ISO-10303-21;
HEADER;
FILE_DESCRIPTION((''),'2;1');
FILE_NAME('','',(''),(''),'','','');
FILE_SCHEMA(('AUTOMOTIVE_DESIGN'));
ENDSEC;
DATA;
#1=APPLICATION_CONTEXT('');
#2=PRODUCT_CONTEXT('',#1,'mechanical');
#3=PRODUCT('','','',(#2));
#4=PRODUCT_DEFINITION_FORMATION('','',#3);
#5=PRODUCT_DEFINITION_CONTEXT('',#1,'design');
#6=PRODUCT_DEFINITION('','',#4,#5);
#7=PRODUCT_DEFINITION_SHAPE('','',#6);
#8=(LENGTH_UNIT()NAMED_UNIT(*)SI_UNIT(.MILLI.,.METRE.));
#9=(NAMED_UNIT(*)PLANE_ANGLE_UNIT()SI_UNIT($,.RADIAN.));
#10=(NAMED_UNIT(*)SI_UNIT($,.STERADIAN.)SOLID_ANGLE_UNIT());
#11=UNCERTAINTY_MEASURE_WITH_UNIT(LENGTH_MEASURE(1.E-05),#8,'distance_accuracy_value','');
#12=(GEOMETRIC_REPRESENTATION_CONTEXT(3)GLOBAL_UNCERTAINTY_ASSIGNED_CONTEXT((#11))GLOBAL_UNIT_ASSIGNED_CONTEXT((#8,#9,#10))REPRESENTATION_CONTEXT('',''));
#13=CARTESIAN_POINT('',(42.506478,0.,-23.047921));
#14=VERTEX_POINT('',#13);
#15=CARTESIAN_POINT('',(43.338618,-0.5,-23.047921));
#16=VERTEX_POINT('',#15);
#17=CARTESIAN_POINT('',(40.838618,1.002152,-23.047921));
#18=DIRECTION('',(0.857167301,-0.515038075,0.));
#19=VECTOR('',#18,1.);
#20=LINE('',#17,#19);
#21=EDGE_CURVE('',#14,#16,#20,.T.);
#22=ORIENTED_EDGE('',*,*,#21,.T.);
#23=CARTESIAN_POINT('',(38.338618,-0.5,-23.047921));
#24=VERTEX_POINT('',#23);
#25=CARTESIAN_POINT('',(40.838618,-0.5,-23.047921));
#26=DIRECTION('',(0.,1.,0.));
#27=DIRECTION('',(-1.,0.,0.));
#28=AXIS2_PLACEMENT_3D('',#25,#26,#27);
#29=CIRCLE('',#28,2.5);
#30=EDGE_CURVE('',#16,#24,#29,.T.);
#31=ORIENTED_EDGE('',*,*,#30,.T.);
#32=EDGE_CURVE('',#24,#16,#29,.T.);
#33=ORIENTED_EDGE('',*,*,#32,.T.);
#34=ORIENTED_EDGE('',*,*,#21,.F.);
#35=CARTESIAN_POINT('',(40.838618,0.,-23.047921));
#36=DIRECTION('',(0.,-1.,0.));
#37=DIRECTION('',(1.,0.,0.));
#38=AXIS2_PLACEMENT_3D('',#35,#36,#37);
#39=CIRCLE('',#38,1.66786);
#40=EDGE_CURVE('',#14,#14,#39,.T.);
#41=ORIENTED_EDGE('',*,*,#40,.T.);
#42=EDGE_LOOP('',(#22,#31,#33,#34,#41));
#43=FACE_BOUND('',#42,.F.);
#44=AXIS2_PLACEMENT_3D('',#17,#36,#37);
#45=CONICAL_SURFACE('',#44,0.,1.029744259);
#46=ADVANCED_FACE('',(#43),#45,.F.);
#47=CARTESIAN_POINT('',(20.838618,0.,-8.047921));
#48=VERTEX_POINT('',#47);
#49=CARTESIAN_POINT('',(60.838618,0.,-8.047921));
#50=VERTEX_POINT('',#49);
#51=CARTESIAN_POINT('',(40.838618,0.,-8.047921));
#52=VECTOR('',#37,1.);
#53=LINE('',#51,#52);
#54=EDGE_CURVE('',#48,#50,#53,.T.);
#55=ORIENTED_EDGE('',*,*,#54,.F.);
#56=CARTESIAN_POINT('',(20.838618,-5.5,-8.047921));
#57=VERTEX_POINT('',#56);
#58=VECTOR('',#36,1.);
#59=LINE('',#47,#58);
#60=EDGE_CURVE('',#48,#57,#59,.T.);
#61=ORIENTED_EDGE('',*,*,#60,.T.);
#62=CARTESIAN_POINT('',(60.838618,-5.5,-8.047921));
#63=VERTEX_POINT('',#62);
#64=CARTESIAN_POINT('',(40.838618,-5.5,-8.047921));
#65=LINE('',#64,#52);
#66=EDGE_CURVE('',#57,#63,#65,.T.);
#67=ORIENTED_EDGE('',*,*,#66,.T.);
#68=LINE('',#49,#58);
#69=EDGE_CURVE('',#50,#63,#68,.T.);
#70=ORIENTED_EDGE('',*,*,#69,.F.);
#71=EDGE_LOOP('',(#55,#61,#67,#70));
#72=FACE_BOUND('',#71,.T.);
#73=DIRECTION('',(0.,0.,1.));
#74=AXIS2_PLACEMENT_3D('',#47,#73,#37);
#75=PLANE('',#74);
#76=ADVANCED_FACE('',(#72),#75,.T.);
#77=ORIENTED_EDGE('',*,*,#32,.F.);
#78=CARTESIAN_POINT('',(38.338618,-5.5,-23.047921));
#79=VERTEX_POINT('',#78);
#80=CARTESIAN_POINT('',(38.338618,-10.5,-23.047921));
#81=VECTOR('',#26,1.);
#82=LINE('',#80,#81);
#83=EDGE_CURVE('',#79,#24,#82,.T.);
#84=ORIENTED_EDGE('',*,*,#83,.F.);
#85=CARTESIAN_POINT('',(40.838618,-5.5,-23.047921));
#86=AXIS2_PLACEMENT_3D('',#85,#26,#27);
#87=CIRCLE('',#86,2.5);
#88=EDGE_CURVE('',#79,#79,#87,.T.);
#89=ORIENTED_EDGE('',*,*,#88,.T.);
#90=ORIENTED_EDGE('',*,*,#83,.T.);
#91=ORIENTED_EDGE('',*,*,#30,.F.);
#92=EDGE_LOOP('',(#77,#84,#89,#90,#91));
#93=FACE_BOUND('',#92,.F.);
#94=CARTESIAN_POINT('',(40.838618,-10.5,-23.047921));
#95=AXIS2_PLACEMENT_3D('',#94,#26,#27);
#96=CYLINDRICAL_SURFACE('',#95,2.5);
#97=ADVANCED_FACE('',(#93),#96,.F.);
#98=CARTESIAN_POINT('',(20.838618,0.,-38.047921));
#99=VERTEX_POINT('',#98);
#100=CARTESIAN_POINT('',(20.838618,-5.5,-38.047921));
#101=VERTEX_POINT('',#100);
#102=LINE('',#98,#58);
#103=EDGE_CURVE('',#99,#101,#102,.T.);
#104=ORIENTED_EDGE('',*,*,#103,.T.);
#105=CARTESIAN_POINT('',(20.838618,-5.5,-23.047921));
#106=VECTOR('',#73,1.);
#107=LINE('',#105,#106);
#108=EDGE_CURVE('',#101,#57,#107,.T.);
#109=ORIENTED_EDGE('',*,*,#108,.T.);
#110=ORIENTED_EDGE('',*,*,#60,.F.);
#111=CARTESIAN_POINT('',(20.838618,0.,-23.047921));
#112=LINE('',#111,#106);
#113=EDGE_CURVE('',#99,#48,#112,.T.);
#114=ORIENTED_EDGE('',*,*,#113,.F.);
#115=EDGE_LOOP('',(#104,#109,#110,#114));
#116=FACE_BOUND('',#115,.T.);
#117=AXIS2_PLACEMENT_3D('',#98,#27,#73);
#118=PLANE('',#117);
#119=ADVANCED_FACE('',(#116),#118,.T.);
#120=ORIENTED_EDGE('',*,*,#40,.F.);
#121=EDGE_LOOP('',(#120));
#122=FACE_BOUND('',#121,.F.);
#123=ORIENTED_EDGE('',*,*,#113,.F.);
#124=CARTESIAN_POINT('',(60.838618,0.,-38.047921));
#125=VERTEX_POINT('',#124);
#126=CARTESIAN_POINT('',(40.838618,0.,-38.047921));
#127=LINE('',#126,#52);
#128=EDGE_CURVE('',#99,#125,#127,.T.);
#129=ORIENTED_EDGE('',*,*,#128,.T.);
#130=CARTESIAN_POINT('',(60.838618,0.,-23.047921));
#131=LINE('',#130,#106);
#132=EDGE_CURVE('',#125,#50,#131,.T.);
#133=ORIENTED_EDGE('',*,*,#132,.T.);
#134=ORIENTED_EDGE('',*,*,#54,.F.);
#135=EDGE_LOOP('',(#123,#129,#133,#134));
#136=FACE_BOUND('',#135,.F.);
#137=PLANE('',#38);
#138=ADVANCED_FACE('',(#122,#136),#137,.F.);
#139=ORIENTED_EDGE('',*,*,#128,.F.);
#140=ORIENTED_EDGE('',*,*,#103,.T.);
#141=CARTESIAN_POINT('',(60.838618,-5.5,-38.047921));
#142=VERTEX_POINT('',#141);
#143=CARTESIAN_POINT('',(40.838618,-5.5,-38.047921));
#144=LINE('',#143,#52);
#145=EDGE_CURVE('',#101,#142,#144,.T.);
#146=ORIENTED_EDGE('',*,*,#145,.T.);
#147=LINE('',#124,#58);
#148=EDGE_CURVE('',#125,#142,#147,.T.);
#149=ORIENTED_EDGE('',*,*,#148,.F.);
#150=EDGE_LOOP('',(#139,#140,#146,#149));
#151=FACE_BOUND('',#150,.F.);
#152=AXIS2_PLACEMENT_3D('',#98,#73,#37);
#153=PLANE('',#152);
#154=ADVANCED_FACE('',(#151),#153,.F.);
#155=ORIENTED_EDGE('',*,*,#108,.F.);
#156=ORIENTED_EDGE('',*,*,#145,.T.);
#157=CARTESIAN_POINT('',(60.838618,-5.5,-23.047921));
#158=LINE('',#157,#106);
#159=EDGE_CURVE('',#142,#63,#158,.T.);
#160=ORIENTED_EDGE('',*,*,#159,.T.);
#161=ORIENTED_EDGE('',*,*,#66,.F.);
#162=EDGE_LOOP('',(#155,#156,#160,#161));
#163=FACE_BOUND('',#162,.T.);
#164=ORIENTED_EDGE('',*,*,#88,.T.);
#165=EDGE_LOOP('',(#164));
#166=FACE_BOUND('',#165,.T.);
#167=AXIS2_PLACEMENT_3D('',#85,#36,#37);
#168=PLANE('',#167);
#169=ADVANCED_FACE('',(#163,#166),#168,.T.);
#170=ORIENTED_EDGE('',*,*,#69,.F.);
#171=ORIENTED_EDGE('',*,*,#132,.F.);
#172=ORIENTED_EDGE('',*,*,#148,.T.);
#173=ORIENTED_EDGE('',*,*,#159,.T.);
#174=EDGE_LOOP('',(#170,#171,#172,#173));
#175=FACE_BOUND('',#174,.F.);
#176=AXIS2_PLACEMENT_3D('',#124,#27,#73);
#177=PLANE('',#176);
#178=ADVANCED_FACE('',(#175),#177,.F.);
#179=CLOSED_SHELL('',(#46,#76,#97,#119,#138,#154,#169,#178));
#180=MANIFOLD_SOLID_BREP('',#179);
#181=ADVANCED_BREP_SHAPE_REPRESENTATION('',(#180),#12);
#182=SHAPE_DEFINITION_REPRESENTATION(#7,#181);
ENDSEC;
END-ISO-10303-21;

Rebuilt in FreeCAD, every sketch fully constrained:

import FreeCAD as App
import Part
import Sketcher

V = App.Vector
Q = App.Units.Quantity

doc = App.newDocument("Part")
body = doc.addObject("PartDesign::Body", "Body")

# Sketch on XZ plane
sketch1 = body.newObject("Sketcher::SketchObject", "Sketch")
sketch1.AttachmentSupport = (doc.getObject("XZ_Plane"), [""])
sketch1.MapMode = "FlatFace"
sketch1.addGeometry(Part.LineSegment(V(21, -8, 0), V(21, -38, 0)), False)
sketch1.addGeometry(Part.LineSegment(V(21, -38, 0), V(61, -38, 0)), False)
sketch1.addGeometry(Part.LineSegment(V(61, -38, 0), V(61, -8, 0)), False)
sketch1.addGeometry(Part.LineSegment(V(61, -8, 0), V(21, -8, 0)), False)
sketch1.addConstraint(Sketcher.Constraint("Coincident", 0, 2, 1, 1))
sketch1.addConstraint(Sketcher.Constraint("Coincident", 1, 2, 2, 1))
sketch1.addConstraint(Sketcher.Constraint("Coincident", 2, 2, 3, 1))
sketch1.addConstraint(Sketcher.Constraint("Coincident", 3, 2, 0, 1))
sketch1.addConstraint(Sketcher.Constraint("Vertical", 0))
sketch1.addConstraint(Sketcher.Constraint("Horizontal", 1))
sketch1.addConstraint(Sketcher.Constraint("Vertical", 2))
sketch1.addConstraint(Sketcher.Constraint("Horizontal", 3))
sketch1.addConstraint(Sketcher.Constraint("DistanceX", 1, 1, 1, 2, Q("40 mm")))
sketch1.addConstraint(Sketcher.Constraint("DistanceY", 0, 2, 0, 1, Q("30 mm")))
sketch1.addConstraint(Sketcher.Constraint("DistanceY", 0, 2, -1, 1, Q("38.047921 mm")))
sketch1.addConstraint(Sketcher.Constraint("DistanceX", -1, 1, 0, 2, Q("20.838618 mm")))
pad1 = body.newObject("PartDesign::Pad", "Pad")
pad1.Profile = sketch1
pad1.Length = 5.5

# Sketch on XZ plane
sketch2 = body.newObject("Sketcher::SketchObject", "Sketch001")
sketch2.AttachmentSupport = (doc.getObject("XZ_Plane"), [""])
sketch2.MapMode = "FlatFace"
sketch2.AttachmentOffset = App.Placement(V(0, 0, 5.5), App.Rotation())
sketch2.addGeometry(Part.Circle(V(40.8, -23, 0), V(0, 0, 1), 2.5), False)
sketch2.addConstraint(Sketcher.Constraint("Diameter", 0, Q("5 mm")))
sketch2.addConstraint(Sketcher.Constraint("DistanceY", 0, 3, -1, 1, Q("23.047921 mm")))
sketch2.addConstraint(Sketcher.Constraint("DistanceX", -1, 1, 0, 3, Q("40.838618 mm")))
doc.recompute()
hole = body.newObject("PartDesign::Hole", "Hole")
hole.Profile = sketch2
hole.ThreadType = "None"
hole.Diameter = 5
hole.DepthType = "Dimension"
hole.Depth = 5
hole.DrillPoint = "Angled"
hole.DrillPointAngle = 118

doc.recompute()
